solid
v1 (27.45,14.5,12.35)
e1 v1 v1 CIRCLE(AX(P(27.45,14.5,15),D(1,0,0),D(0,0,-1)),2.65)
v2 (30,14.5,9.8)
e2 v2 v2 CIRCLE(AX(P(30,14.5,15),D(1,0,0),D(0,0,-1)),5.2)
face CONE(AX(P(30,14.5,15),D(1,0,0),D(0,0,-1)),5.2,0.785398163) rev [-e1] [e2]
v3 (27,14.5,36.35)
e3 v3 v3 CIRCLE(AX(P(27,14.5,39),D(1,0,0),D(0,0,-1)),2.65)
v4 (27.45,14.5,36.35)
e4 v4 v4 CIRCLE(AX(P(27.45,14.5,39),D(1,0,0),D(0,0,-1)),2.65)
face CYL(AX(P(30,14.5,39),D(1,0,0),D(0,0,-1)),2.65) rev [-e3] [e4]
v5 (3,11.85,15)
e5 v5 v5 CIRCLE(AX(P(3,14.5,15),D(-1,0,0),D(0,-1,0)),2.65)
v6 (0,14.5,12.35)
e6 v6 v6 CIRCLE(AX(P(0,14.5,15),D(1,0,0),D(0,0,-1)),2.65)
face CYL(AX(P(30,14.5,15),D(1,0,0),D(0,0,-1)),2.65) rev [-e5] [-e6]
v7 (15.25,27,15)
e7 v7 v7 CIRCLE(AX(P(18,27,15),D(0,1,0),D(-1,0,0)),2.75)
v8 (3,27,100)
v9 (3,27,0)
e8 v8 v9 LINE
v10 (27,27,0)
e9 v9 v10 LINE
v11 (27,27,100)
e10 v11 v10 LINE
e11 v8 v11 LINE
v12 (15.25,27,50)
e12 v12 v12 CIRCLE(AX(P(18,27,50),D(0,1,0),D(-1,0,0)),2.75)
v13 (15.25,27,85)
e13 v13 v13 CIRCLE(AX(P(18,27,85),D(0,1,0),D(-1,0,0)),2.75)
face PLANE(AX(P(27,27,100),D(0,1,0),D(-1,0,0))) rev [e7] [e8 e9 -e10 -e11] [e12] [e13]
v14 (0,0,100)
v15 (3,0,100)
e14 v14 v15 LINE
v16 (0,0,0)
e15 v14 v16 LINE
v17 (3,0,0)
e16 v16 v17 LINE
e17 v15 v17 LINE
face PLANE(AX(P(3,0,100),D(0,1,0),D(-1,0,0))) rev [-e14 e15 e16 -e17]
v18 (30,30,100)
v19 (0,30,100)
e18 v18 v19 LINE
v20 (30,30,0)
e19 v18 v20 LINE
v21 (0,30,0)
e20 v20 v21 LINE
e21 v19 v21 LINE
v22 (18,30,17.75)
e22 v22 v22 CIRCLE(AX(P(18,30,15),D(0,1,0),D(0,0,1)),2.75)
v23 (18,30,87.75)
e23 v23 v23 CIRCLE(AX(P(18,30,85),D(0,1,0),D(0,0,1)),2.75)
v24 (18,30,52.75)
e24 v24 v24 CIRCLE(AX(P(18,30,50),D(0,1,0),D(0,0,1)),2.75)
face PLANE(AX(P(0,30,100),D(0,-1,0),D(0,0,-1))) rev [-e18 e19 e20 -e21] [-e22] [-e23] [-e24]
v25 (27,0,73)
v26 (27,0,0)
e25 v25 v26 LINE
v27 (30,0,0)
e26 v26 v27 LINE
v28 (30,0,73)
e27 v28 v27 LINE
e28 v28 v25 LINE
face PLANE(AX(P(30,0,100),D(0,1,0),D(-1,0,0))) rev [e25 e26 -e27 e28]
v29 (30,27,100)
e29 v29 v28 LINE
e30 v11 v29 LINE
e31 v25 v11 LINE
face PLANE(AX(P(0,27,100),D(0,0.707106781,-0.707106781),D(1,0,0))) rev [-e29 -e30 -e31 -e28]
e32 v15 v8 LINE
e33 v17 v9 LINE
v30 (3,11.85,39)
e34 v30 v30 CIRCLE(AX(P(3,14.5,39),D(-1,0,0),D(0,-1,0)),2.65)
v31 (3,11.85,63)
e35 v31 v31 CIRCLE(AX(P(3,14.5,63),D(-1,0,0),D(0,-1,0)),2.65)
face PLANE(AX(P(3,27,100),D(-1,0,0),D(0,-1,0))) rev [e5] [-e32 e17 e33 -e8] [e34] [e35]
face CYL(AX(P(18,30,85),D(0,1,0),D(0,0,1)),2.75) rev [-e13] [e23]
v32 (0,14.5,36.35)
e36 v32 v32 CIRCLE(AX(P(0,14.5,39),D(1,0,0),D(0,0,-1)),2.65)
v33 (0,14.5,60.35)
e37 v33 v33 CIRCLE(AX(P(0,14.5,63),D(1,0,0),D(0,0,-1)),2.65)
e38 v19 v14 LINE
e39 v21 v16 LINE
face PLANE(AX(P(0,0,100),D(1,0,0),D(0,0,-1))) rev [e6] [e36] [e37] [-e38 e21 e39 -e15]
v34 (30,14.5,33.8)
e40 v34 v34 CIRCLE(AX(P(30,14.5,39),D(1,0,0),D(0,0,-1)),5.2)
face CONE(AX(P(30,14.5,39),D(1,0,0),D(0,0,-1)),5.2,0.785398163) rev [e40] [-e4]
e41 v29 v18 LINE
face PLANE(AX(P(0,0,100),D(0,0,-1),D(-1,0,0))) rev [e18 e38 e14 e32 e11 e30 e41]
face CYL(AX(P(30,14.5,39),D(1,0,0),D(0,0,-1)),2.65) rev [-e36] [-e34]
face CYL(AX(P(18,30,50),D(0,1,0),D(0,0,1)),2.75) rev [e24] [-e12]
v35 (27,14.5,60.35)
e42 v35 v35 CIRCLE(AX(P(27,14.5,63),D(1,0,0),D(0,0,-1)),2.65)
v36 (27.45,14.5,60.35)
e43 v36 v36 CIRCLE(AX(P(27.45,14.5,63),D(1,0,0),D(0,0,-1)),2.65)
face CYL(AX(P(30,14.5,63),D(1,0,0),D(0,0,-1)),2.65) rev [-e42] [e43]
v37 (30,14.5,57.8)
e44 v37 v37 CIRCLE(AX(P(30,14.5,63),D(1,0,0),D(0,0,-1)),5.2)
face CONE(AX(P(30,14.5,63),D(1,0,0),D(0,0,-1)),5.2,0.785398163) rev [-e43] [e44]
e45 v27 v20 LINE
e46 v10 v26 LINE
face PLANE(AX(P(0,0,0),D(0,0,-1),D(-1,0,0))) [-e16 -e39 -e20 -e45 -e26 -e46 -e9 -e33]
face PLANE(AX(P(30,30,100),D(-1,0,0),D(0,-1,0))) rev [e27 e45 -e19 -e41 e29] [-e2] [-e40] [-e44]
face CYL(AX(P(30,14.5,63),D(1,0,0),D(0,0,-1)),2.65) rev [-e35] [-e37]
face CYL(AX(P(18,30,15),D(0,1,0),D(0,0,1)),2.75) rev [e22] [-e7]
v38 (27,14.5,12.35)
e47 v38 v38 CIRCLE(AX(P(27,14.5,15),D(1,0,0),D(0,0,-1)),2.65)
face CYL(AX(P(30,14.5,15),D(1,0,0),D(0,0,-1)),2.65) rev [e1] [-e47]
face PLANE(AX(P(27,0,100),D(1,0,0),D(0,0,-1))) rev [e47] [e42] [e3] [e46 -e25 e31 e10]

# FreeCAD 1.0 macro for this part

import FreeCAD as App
import Part
import Sketcher


def edges_at(feature, points):
    """Names of the edges that pass closest to the given points."""
    edges = feature.Shape.Edges
    near = lambda p: min(range(len(edges)), key=lambda i: edges[i].distToShape(Part.Vertex(*p))[0])
    return sorted({f"Edge{near(p) + 1}" for p in points})

doc = App.newDocument("Part")
body = doc.addObject("PartDesign::Body", "Body")

# Sketch on XY plane
sketch1 = doc.addObject("Sketcher::SketchObject", "Sketch")
body.addObject(sketch1)
sketch1.AttachmentSupport = (doc.XY_Plane, [""])
sketch1.MapMode = "FlatFace"
sketch1.addGeometry([
    Part.LineSegment(App.Vector(0, 30, 0), App.Vector(0, 0, 0)),  # 0
    Part.LineSegment(App.Vector(0, 0, 0), App.Vector(3, 0, 0)),  # 1
    Part.LineSegment(App.Vector(3, 0, 0), App.Vector(3, 27, 0)),  # 2
    Part.LineSegment(App.Vector(3, 27, 0), App.Vector(27, 27, 0)),  # 3
    Part.LineSegment(App.Vector(27, 27, 0), App.Vector(27, 0, 0)),  # 4
    Part.LineSegment(App.Vector(27, 0, 0), App.Vector(30, 0, 0)),  # 5
    Part.LineSegment(App.Vector(30, 0, 0), App.Vector(30, 30, 0)),  # 6
    Part.LineSegment(App.Vector(30, 30, 0), App.Vector(0, 30, 0)),  # 7
], False)
sketch1.addConstraint([
    Sketcher.Constraint("Coincident", 0, 2, 1, 1),
    Sketcher.Constraint("Coincident", 1, 2, 2, 1),
    Sketcher.Constraint("Coincident", 2, 2, 3, 1),
    Sketcher.Constraint("Coincident", 3, 2, 4, 1),
    Sketcher.Constraint("Coincident", 4, 2, 5, 1),
    Sketcher.Constraint("Coincident", 5, 2, 6, 1),
    Sketcher.Constraint("Coincident", 6, 2, 7, 1),
    Sketcher.Constraint("Coincident", 7, 2, 0, 1),
    Sketcher.Constraint("Vertical", 0),
    Sketcher.Constraint("Horizontal", 1),
    Sketcher.Constraint("Vertical", 2),
    Sketcher.Constraint("Horizontal", 3),
    Sketcher.Constraint("Vertical", 4),
    Sketcher.Constraint("Horizontal", 5),
    Sketcher.Constraint("Vertical", 6),
    Sketcher.Constraint("Horizontal", 7),
    Sketcher.Constraint("Coincident", 0, 2, -1, 1),
    Sketcher.Constraint("PointOnObject", 4, 2, -1),
    Sketcher.Constraint("Equal", 1, 5),
    Sketcher.Constraint("Equal", 7, 0),
    Sketcher.Constraint("DistanceX", 1, 1, 1, 2, 3.0),
    Sketcher.Constraint("DistanceX", 3, 1, 3, 2, 24.0),
    Sketcher.Constraint("DistanceY", 2, 1, 2, 2, 27.0),
])
pad1 = doc.addObject("PartDesign::Pad", "Pad")
body.addObject(pad1)
pad1.Profile = sketch1
pad1.Length = 100

# Sketch on XZ plane
sketch2 = doc.addObject("Sketcher::SketchObject", "Sketch001")
body.addObject(sketch2)
sketch2.AttachmentSupport = (doc.XZ_Plane, [""])
sketch2.MapMode = "FlatFace"
sketch2.AttachmentOffset = App.Placement(App.Vector(0, 0, -30), App.Rotation())
sketch2.addGeometry([
    Part.Circle(App.Vector(18, 50, 0), App.Vector(0, 0, 1), 2.8),
    Part.Circle(App.Vector(18, 15, 0), App.Vector(0, 0, 1), 2.8),
    Part.Circle(App.Vector(18, 85, 0), App.Vector(0, 0, 1), 2.8),
], False)
sketch2.addConstraint([
    Sketcher.Constraint("Equal", 0, 1),
    Sketcher.Constraint("Equal", 1, 2),
    Sketcher.Constraint("Vertical", 0, 3, 1, 3),
    Sketcher.Constraint("Vertical", 1, 3, 2, 3),
    Sketcher.Constraint("Diameter", 0, 5.5),
    Sketcher.Constraint("DistanceX", -1, 1, 0, 3, 18.0),
    Sketcher.Constraint("DistanceY", -1, 1, 0, 3, 50.0),
    Sketcher.Constraint("DistanceY", -1, 1, 1, 3, 15.0),
    Sketcher.Constraint("DistanceY", -1, 1, 2, 3, 85.0),
])
doc.recompute()
hole = doc.addObject("PartDesign::Hole", "Hole")
body.addObject(hole)
hole.Profile = sketch2
hole.ThreadType = "None"
hole.Diameter = 5.5
hole.DepthType = "ThroughAll"
hole.Reversed = True

# Sketch on YZ plane
sketch3 = doc.addObject("Sketcher::SketchObject", "Sketch002")
body.addObject(sketch3)
sketch3.AttachmentSupport = (doc.YZ_Plane, [""])
sketch3.MapMode = "FlatFace"
sketch3.AttachmentOffset = App.Placement(App.Vector(0, 0, 30), App.Rotation())
sketch3.addGeometry([
    Part.Circle(App.Vector(14.5, 15, 0), App.Vector(0, 0, 1), 2.6),
    Part.Circle(App.Vector(14.5, 63, 0), App.Vector(0, 0, 1), 2.6),
    Part.Circle(App.Vector(14.5, 39, 0), App.Vector(0, 0, 1), 2.6),
], False)
sketch3.addConstraint([
    Sketcher.Constraint("Equal", 0, 1),
    Sketcher.Constraint("Equal", 1, 2),
    Sketcher.Constraint("Vertical", 0, 3, 1, 3),
    Sketcher.Constraint("Vertical", 1, 3, 2, 3),
    Sketcher.Constraint("Diameter", 0, 5.3),
    Sketcher.Constraint("DistanceY", -1, 1, 0, 3, 15.0),
    Sketcher.Constraint("DistanceY", -1, 1, 1, 3, 63.0),
    Sketcher.Constraint("DistanceY", -1, 1, 2, 3, 39.0),
    Sketcher.Constraint("DistanceX", -1, 1, 0, 3, 14.5),
])
doc.recompute()
hole2 = doc.addObject("PartDesign::Hole", "Hole001")
body.addObject(hole2)
hole2.Profile = sketch3
hole2.ThreadType = "None"
hole2.Diameter = 5.3
hole2.DepthType = "ThroughAll"
hole2.HoleCutType = "Countersink"
hole2.HoleCutDiameter = 10.4
hole2.HoleCutCountersinkAngle = 90
doc.recompute()

chamfer = doc.addObject("PartDesign::Chamfer", "Chamfer")
body.addObject(chamfer)
chamfer.Base = (hole2, edges_at(hole2, [(28.5, 0, 100)]))
chamfer.Size = 27

doc.recompute()
